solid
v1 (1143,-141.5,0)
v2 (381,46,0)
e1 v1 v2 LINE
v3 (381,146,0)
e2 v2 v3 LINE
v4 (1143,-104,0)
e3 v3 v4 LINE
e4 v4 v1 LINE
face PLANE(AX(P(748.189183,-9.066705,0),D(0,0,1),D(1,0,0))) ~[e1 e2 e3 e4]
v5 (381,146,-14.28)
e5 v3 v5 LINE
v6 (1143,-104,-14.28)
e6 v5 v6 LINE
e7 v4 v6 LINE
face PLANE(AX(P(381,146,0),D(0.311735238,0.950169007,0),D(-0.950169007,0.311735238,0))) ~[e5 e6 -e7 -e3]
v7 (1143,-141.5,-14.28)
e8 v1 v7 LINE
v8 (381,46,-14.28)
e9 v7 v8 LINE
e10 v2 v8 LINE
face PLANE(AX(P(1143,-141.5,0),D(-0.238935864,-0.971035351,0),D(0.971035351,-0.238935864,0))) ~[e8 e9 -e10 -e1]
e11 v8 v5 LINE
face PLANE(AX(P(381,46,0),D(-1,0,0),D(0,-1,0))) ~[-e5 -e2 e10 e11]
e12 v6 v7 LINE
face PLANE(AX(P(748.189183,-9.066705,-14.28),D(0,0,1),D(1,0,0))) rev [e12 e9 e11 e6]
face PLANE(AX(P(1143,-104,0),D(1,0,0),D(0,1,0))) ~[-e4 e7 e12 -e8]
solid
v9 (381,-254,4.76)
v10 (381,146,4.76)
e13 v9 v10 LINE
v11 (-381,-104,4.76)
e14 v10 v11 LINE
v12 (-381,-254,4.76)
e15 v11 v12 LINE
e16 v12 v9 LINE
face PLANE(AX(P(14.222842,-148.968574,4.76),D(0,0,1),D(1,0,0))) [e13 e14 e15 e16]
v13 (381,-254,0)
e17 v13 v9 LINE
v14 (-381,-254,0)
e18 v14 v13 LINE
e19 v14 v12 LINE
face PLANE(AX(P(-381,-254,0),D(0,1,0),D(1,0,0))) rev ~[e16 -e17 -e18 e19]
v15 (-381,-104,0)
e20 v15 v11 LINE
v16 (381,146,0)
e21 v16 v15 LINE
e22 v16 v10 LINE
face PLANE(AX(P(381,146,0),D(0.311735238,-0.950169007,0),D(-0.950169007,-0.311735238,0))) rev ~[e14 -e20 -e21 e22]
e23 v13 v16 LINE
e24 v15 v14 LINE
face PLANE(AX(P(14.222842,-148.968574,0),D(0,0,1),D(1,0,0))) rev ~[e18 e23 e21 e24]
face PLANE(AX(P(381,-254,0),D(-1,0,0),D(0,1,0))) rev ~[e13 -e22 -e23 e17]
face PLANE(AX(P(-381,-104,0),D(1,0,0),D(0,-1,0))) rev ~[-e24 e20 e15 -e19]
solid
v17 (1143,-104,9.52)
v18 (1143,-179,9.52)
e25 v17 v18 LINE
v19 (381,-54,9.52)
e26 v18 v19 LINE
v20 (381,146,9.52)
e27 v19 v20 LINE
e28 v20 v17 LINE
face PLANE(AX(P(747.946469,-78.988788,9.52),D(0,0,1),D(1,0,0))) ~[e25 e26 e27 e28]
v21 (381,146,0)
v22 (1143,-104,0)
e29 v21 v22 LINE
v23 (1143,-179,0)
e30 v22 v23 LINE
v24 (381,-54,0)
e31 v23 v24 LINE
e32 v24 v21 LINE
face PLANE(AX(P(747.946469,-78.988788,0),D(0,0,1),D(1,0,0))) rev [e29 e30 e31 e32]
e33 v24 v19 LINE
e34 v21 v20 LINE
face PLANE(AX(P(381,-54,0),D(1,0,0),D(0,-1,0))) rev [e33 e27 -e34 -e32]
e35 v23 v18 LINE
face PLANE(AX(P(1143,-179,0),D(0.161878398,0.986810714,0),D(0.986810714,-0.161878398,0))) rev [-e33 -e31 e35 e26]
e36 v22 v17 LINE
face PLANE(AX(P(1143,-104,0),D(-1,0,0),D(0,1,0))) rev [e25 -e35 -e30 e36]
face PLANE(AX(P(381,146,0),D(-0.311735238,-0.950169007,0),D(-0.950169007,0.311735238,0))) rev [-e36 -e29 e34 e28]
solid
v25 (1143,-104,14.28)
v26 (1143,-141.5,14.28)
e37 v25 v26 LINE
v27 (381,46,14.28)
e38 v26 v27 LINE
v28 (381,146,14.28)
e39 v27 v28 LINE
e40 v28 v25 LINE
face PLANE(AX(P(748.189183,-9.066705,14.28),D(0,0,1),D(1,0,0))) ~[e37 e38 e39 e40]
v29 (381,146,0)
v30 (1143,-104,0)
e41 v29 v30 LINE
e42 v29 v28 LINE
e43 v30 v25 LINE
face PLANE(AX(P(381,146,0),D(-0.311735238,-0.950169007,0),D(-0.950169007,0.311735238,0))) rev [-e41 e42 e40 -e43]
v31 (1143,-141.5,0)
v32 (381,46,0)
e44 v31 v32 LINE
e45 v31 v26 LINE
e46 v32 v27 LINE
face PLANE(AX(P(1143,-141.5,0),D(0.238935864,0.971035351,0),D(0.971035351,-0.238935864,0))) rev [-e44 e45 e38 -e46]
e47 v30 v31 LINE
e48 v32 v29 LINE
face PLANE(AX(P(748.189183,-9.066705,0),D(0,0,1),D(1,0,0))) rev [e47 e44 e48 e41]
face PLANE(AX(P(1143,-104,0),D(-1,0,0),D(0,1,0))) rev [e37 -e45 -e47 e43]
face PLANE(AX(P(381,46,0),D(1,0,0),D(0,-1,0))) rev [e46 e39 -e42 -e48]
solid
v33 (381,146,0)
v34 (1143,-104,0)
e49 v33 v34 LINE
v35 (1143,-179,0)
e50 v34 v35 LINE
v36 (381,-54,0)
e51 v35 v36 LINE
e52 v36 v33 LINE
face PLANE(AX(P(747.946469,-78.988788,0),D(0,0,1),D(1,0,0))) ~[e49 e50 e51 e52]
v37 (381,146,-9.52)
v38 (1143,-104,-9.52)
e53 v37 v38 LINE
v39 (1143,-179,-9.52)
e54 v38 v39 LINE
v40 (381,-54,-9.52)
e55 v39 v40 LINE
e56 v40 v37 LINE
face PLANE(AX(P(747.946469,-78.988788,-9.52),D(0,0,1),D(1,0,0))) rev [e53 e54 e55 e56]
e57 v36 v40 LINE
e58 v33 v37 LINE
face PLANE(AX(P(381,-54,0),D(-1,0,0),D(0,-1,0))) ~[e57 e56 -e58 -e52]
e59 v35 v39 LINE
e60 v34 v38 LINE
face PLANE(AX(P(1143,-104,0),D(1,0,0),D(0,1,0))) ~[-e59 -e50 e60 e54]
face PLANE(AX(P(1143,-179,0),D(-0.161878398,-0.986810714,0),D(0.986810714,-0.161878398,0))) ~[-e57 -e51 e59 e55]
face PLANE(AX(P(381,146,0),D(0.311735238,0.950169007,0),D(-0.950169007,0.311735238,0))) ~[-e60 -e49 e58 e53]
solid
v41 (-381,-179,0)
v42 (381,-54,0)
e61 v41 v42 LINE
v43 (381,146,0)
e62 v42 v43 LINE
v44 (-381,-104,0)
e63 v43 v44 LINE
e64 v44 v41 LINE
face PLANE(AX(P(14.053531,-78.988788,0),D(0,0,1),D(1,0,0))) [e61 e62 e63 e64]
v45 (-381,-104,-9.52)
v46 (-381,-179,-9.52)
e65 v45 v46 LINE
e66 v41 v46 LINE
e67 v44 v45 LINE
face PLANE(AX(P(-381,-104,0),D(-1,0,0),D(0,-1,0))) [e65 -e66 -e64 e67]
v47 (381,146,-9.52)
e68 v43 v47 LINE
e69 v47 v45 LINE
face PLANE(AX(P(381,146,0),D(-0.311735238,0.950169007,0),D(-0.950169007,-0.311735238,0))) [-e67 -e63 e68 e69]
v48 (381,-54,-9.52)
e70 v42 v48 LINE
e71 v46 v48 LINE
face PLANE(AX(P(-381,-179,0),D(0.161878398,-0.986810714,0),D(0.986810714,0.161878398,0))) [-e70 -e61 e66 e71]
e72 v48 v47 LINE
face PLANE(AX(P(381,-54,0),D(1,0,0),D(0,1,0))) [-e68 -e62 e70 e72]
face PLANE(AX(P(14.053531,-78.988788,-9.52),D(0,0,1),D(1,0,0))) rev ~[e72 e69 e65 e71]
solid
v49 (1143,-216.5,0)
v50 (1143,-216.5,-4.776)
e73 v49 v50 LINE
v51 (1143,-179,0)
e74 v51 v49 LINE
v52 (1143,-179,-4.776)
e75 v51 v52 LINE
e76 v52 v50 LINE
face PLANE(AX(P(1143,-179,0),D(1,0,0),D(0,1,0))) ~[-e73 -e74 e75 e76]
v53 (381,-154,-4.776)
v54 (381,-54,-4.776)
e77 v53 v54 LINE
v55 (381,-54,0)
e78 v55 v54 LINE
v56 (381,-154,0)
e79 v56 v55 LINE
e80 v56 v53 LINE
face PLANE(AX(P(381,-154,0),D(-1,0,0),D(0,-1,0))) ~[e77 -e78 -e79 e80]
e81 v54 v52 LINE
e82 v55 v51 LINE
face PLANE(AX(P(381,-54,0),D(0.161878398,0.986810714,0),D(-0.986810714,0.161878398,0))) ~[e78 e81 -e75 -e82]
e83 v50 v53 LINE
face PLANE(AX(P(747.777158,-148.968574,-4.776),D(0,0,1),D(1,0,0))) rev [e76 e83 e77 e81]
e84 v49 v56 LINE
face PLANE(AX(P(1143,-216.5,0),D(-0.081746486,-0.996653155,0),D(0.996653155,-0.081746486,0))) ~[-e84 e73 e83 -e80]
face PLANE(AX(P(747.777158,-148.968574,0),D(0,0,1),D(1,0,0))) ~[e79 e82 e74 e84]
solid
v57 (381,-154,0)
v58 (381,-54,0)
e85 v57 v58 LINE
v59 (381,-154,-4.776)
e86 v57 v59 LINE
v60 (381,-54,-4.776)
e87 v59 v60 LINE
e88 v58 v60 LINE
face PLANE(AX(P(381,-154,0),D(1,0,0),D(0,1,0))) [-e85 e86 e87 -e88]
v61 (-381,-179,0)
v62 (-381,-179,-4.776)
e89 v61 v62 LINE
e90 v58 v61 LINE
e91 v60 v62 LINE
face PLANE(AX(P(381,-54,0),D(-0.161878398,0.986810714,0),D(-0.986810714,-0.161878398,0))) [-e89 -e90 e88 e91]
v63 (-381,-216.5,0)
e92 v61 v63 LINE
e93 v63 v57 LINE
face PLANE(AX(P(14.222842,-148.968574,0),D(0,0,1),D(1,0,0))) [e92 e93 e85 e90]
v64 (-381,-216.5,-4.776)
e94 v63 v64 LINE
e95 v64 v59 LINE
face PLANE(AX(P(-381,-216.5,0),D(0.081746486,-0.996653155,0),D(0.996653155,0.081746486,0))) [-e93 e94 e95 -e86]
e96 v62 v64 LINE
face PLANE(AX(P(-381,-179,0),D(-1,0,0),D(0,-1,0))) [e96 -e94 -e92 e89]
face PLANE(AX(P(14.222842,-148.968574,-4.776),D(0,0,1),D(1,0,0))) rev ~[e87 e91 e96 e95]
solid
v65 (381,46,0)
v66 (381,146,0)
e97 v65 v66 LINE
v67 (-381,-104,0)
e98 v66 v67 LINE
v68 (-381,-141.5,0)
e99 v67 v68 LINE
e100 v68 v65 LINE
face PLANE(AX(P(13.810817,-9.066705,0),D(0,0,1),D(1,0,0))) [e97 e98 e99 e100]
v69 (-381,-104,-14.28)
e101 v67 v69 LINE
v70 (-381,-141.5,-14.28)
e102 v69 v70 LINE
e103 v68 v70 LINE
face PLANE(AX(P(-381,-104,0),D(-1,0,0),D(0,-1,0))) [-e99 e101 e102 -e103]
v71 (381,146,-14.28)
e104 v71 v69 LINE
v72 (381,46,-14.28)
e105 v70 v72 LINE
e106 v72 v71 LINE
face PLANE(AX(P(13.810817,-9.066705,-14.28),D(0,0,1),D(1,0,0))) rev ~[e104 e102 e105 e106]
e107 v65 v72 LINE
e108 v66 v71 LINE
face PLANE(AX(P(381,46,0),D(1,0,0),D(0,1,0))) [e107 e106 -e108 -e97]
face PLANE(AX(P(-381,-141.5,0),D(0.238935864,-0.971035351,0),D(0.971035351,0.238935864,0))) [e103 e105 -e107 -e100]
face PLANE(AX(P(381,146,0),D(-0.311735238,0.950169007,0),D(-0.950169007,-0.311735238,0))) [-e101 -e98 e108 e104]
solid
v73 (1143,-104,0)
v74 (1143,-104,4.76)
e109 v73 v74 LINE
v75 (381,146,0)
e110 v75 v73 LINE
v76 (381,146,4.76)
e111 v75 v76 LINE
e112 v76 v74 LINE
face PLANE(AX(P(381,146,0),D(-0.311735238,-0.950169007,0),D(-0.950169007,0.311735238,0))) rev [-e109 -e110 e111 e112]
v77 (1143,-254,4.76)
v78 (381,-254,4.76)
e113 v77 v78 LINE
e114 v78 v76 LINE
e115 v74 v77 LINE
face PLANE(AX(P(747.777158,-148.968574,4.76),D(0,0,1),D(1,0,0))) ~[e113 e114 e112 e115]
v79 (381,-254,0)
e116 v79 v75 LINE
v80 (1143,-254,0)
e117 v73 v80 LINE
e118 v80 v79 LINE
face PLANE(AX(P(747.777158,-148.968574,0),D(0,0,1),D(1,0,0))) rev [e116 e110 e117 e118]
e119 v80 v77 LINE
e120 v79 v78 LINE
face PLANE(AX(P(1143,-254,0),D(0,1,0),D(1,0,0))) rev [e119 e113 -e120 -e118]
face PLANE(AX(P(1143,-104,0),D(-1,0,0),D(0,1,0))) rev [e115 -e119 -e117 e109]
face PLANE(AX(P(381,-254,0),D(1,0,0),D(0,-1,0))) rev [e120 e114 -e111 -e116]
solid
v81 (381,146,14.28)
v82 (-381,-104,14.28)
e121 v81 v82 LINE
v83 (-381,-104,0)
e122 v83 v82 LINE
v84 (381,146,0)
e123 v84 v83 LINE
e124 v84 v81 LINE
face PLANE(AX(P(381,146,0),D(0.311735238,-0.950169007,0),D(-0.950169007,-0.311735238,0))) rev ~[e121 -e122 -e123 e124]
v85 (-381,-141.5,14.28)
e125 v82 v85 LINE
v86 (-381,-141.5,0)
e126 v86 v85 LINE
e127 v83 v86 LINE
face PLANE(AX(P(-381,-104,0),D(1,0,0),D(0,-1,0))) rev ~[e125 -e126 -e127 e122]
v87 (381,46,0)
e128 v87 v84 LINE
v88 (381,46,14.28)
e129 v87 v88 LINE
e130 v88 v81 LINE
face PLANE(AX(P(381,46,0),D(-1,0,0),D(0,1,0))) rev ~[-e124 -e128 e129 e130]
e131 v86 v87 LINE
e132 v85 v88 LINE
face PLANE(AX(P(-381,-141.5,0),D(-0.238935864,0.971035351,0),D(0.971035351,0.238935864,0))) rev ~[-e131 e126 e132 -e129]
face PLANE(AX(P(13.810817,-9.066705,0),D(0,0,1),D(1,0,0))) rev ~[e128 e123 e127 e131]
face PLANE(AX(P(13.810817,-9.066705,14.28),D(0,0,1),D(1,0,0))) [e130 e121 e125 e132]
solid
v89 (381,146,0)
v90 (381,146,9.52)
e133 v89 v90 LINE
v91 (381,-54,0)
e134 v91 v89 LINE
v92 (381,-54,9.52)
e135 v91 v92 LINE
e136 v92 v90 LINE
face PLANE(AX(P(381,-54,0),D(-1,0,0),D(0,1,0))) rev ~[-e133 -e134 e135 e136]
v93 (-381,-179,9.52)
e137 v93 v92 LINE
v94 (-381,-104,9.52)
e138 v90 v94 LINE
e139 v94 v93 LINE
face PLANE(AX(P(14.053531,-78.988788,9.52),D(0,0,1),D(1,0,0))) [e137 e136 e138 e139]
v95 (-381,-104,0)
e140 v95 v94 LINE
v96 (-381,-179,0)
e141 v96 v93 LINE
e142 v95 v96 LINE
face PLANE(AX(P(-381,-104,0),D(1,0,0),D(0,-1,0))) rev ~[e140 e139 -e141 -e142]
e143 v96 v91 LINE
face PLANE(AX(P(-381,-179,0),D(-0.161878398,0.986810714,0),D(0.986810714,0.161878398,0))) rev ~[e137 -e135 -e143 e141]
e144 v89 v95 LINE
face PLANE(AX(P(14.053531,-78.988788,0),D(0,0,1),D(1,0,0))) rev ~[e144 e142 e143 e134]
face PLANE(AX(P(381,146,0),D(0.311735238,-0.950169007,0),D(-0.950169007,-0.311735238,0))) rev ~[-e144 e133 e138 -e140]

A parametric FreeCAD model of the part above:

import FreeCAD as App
import Part
import Sketcher
from FreeCAD import Vector

doc = App.newDocument("Part")
params = doc.addObject("Spreadsheet::Sheet", "Params")
for row, (alias, value) in enumerate([
    ("sketch1_width", "762 mm"),
    ("sketch1_height", "150 mm"),
    ("sketch1_height2", "400 mm"),
    ("pad1_length", "4.76 mm"),
    ("sketch2_height", "200 mm"),
    ("sketch2_height2", "75 mm"),
    ("pad2_length", "9.52 mm"),
    ("sketch3_height", "100 mm"),
    ("sketch3_height2", "37.5 mm"),
    ("pad3_length", "14.28 mm"),
    ("sketch4_height", "200 mm"),
    ("sketch4_height2", "75 mm"),
    ("pad4_length", "9.52 mm"),
    ("sketch5_height", "100 mm"),
    ("sketch5_height2", "37.5 mm"),
    ("pad5_length", "14.28 mm"),
    ("sketch6_height", "100 mm"),
    ("sketch6_height2", "37.5 mm"),
    ("pad6_length", "4.776 mm"),
], start=1):
    params.set(f"A{row}", alias)
    params.set(f"B{row}", "=" + value)
    params.setAlias(f"B{row}", alias)

body = doc.addObject("PartDesign::Body", "Body")

sketch1 = doc.addObject("Sketcher::SketchObject", "Sketch")
body.addObject(sketch1)
sketch1.AttachmentSupport = (doc.XY_Plane, [""])
sketch1.MapMode = "FlatFace"
sketch1.addGeometry([
    Part.LineSegment(Vector(381, 146, 0), Vector(-381, -104, 0)),
    Part.LineSegment(Vector(-381, -104, 0), Vector(-381, -254, 0)),
    Part.LineSegment(Vector(-381, -254, 0), Vector(381, -254, 0)),
    Part.LineSegment(Vector(381, -254, 0), Vector(381, 146, 0)),
], False)
sketch1.addConstraint([
    Sketcher.Constraint("Coincident", 0, 2, 1, 1),
    Sketcher.Constraint("Coincident", 1, 2, 2, 1),
    Sketcher.Constraint("Coincident", 2, 2, 3, 1),
    Sketcher.Constraint("Coincident", 3, 2, 0, 1),
    Sketcher.Constraint("Vertical", 1),
    Sketcher.Constraint("Horizontal", 2),
    Sketcher.Constraint("Vertical", 3),
    Sketcher.Constraint("DistanceX", 2, 1, 2, 2, 762.0),
    Sketcher.Constraint("DistanceY", 1, 2, 1, 1, 150.0),
    Sketcher.Constraint("DistanceY", 3, 1, 3, 2, 400.0),
    Sketcher.Constraint("DistanceX", 0, 2, -1, 1, 381.0),
    Sketcher.Constraint("DistanceY", 0, 2, -1, 1, 104.0),
])
sketch1.setExpression("Constraints[7]", "Params.sketch1_width")
sketch1.setExpression("Constraints[8]", "Params.sketch1_height")
sketch1.setExpression("Constraints[9]", "Params.sketch1_height2")
pad1 = doc.addObject("PartDesign::Pad", "Pad")
body.addObject(pad1)
pad1.Profile = sketch1
pad1.setExpression("Length", "Params.pad1_length")
body2 = doc.addObject("PartDesign::Body", "Body001")

sketch2 = doc.addObject("Sketcher::SketchObject", "Sketch001")
body2.addObject(sketch2)
sketch2.AttachmentSupport = (doc.getObject("XY_Plane001"), [""])
sketch2.MapMode = "FlatFace"
sketch2.addGeometry([
    Part.LineSegment(Vector(-381, -179, 0), Vector(381, -54, 0)),
    Part.LineSegment(Vector(381, -54, 0), Vector(381, 146, 0)),
    Part.LineSegment(Vector(381, 146, 0), Vector(-381, -104, 0)),
    Part.LineSegment(Vector(-381, -104, 0), Vector(-381, -179, 0)),
], False)
sketch2.addConstraint([
    Sketcher.Constraint("Coincident", 0, 2, 1, 1),
    Sketcher.Constraint("Coincident", 1, 2, 2, 1),
    Sketcher.Constraint("Coincident", 2, 2, 3, 1),
    Sketcher.Constraint("Coincident", 3, 2, 0, 1),
    Sketcher.Constraint("Vertical", 1),
    Sketcher.Constraint("Vertical", 3),
    Sketcher.Constraint("DistanceY", 1, 1, 1, 2, 200.0),
    Sketcher.Constraint("DistanceY", 3, 2, 3, 1, 75.0),
    Sketcher.Constraint("DistanceX", -1, 1, 0, 2, 381.0),
    Sketcher.Constraint("DistanceY", 0, 2, -1, 1, 54.0),
    Sketcher.Constraint("DistanceX", 2, 2, -1, 1, 381.0),
    Sketcher.Constraint("DistanceY", 2, 2, -1, 1, 104.0),
])
sketch2.setExpression("Constraints[6]", "Params.sketch2_height")
sketch2.setExpression("Constraints[7]", "Params.sketch2_height2")
pad2 = doc.addObject("PartDesign::Pad", "Pad001")
body2.addObject(pad2)
pad2.Profile = sketch2
pad2.setExpression("Length", "Params.pad2_length")
body3 = doc.addObject("PartDesign::Body", "Body002")

sketch3 = doc.addObject("Sketcher::SketchObject", "Sketch002")
body3.addObject(sketch3)
sketch3.AttachmentSupport = (doc.getObject("XY_Plane002"), [""])
sketch3.MapMode = "FlatFace"
sketch3.addGeometry([
    Part.LineSegment(Vector(381, 146, 0), Vector(-381, -104, 0)),
    Part.LineSegment(Vector(-381, -104, 0), Vector(-381, -141.5, 0)),
    Part.LineSegment(Vector(-381, -141.5, 0), Vector(381, 46, 0)),
    Part.LineSegment(Vector(381, 46, 0), Vector(381, 146, 0)),
], False)
sketch3.addConstraint([
    Sketcher.Constraint("Coincident", 0, 2, 1, 1),
    Sketcher.Constraint("Coincident", 1, 2, 2, 1),
    Sketcher.Constraint("Coincident", 2, 2, 3, 1),
    Sketcher.Constraint("Coincident", 3, 2, 0, 1),
    Sketcher.Constraint("Vertical", 1),
    Sketcher.Constraint("Vertical", 3),
    Sketcher.Constraint("DistanceY", 3, 1, 3, 2, 100.0),
    Sketcher.Constraint("DistanceY", 1, 2, 1, 1, 37.5),
    Sketcher.Constraint("DistanceX", 0, 2, -1, 1, 381.0),
    Sketcher.Constraint("DistanceY", 0, 2, -1, 1, 104.0),
    Sketcher.Constraint("DistanceX", -1, 1, 2, 2, 381.0),
    Sketcher.Constraint("DistanceY", -1, 1, 2, 2, 46.0),
])
sketch3.setExpression("Constraints[6]", "Params.sketch3_height")
sketch3.setExpression("Constraints[7]", "Params.sketch3_height2")
pad3 = doc.addObject("PartDesign::Pad", "Pad002")
body3.addObject(pad3)
pad3.Profile = sketch3
pad3.setExpression("Length", "Params.pad3_length")
body4 = doc.addObject("PartDesign::Body", "Body003")

sketch4 = doc.addObject("Sketcher::SketchObject", "Sketch003")
body4.addObject(sketch4)
sketch4.AttachmentSupport = (doc.getObject("XY_Plane003"), [""])
sketch4.MapMode = "FlatFace"
sketch4.addGeometry([
    Part.LineSegment(Vector(-381, -179, 0), Vector(381, -54, 0)),
    Part.LineSegment(Vector(381, -54, 0), Vector(381, 146, 0)),
    Part.LineSegment(Vector(381, 146, 0), Vector(-381, -104, 0)),
    Part.LineSegment(Vector(-381, -104, 0), Vector(-381, -179, 0)),
], False)
sketch4.addConstraint([
    Sketcher.Constraint("Coincident", 0, 2, 1, 1),
    Sketcher.Constraint("Coincident", 1, 2, 2, 1),
    Sketcher.Constraint("Coincident", 2, 2, 3, 1),
    Sketcher.Constraint("Coincident", 3, 2, 0, 1),
    Sketcher.Constraint("Vertical", 1),
    Sketcher.Constraint("Vertical", 3),
    Sketcher.Constraint("DistanceY", 1, 1, 1, 2, 200.0),
    Sketcher.Constraint("DistanceY", 3, 2, 3, 1, 75.0),
    Sketcher.Constraint("DistanceX", -1, 1, 0, 2, 381.0),
    Sketcher.Constraint("DistanceY", 0, 2, -1, 1, 54.0),
    Sketcher.Constraint("DistanceX", 2, 2, -1, 1, 381.0),
    Sketcher.Constraint("DistanceY", 2, 2, -1, 1, 104.0),
])
sketch4.setExpression("Constraints[6]", "Params.sketch4_height")
sketch4.setExpression("Constraints[7]", "Params.sketch4_height2")
pad4 = doc.addObject("PartDesign::Pad", "Pad003")
body4.addObject(pad4)
pad4.Profile = sketch4
pad4.setExpression("Length", "Params.pad4_length")
pad4.Reversed = True
body5 = doc.addObject("PartDesign::Body", "Body004")

sketch5 = doc.addObject("Sketcher::SketchObject", "Sketch004")
body5.addObject(sketch5)
sketch5.AttachmentSupport = (doc.getObject("XY_Plane004"), [""])
sketch5.MapMode = "FlatFace"
sketch5.addGeometry([
    Part.LineSegment(Vector(381, 146, 0), Vector(-381, -104, 0)),
    Part.LineSegment(Vector(-381, -104, 0), Vector(-381, -141.5, 0)),
    Part.LineSegment(Vector(-381, -141.5, 0), Vector(381, 46, 0)),
    Part.LineSegment(Vector(381, 46, 0), Vector(381, 146, 0)),
], False)
sketch5.addConstraint([
    Sketcher.Constraint("Coincident", 0, 2, 1, 1),
    Sketcher.Constraint("Coincident", 1, 2, 2, 1),
    Sketcher.Constraint("Coincident", 2, 2, 3, 1),
    Sketcher.Constraint("Coincident", 3, 2, 0, 1),
    Sketcher.Constraint("Vertical", 1),
    Sketcher.Constraint("Vertical", 3),
    Sketcher.Constraint("DistanceY", 3, 1, 3, 2, 100.0),
    Sketcher.Constraint("DistanceY", 1, 2, 1, 1, 37.5),
    Sketcher.Constraint("DistanceX", 0, 2, -1, 1, 381.0),
    Sketcher.Constraint("DistanceY", 0, 2, -1, 1, 104.0),
    Sketcher.Constraint("DistanceX", -1, 1, 2, 2, 381.0),
    Sketcher.Constraint("DistanceY", -1, 1, 2, 2, 46.0),
])
sketch5.setExpression("Constraints[6]", "Params.sketch5_height")
sketch5.setExpression("Constraints[7]", "Params.sketch5_height2")
pad5 = doc.addObject("PartDesign::Pad", "Pad004")
body5.addObject(pad5)
pad5.Profile = sketch5
pad5.setExpression("Length", "Params.pad5_length")
pad5.Reversed = True
body6 = doc.addObject("PartDesign::Body", "Body005")

sketch6 = doc.addObject("Sketcher::SketchObject", "Sketch005")
body6.addObject(sketch6)
sketch6.AttachmentSupport = (doc.getObject("XY_Plane005"), [""])
sketch6.MapMode = "FlatFace"
sketch6.addGeometry([
    Part.LineSegment(Vector(381, -54, 0), Vector(-381, -179, 0)),
    Part.LineSegment(Vector(-381, -179, 0), Vector(-381, -216.5, 0)),
    Part.LineSegment(Vector(-381, -216.5, 0), Vector(381, -154, 0)),
    Part.LineSegment(Vector(381, -154, 0), Vector(381, -54, 0)),
], False)
sketch6.addConstraint([
    Sketcher.Constraint("Coincident", 0, 2, 1, 1),
    Sketcher.Constraint("Coincident", 1, 2, 2, 1),
    Sketcher.Constraint("Coincident", 2, 2, 3, 1),
    Sketcher.Constraint("Coincident", 3, 2, 0, 1),
    Sketcher.Constraint("Vertical", 1),
    Sketcher.Constraint("Vertical", 3),
    Sketcher.Constraint("DistanceY", 3, 1, 3, 2, 100.0),
    Sketcher.Constraint("DistanceY", 1, 2, 1, 1, 37.5),
    Sketcher.Constraint("DistanceX", 0, 2, -1, 1, 381.0),
    Sketcher.Constraint("DistanceY", 0, 2, -1, 1, 179.0),
    Sketcher.Constraint("DistanceX", -1, 1, 2, 2, 381.0),
    Sketcher.Constraint("DistanceY", 2, 2, -1, 1, 154.0),
])
sketch6.setExpression("Constraints[6]", "Params.sketch6_height")
sketch6.setExpression("Constraints[7]", "Params.sketch6_height2")
pad6 = doc.addObject("PartDesign::Pad", "Pad005")
body6.addObject(pad6)
pad6.Profile = sketch6
pad6.setExpression("Length", "Params.pad6_length")
pad6.Reversed = True
body7 = doc.addObject("PartDesign::Body", "Body006")
doc.recompute()

mirroring = doc.addObject("Part::Mirroring", "Mirroring")
mirroring.Source = body
mirroring.Base = Vector(381, -54, 2.38)
mirroring.Normal = Vector(1, 0, 0)
body7.BaseFeature = mirroring
doc.recompute()
body8 = doc.addObject("PartDesign::Body", "Body007")
doc.recompute()

mirroring2 = doc.addObject("Part::Mirroring", "Mirroring001")
mirroring2.Source = body2
mirroring2.Base = Vector(381, -54, 2.38)
mirroring2.Normal = Vector(1, 0, 0)
body8.BaseFeature = mirroring2
doc.recompute()
body9 = doc.addObject("PartDesign::Body", "Body008")
doc.recompute()

mirroring3 = doc.addObject("Part::Mirroring", "Mirroring002")
mirroring3.Source = body3
mirroring3.Base = Vector(381, -54, 2.38)
mirroring3.Normal = Vector(1, 0, 0)
body9.BaseFeature = mirroring3
doc.recompute()
body10 = doc.addObject("PartDesign::Body", "Body009")
doc.recompute()

mirroring4 = doc.addObject("Part::Mirroring", "Mirroring003")
mirroring4.Source = body4
mirroring4.Base = Vector(381, -54, 2.38)
mirroring4.Normal = Vector(1, 0, 0)
body10.BaseFeature = mirroring4
doc.recompute()
body11 = doc.addObject("PartDesign::Body", "Body010")
doc.recompute()

mirroring5 = doc.addObject("Part::Mirroring", "Mirroring004")
mirroring5.Source = body5
mirroring5.Base = Vector(381, -54, 2.38)
mirroring5.Normal = Vector(1, 0, 0)
body11.BaseFeature = mirroring5
doc.recompute()
body12 = doc.addObject("PartDesign::Body", "Body011")
doc.recompute()

mirroring6 = doc.addObject("Part::Mirroring", "Mirroring005")
mirroring6.Source = body6
mirroring6.Base = Vector(381, -54, 2.38)
mirroring6.Normal = Vector(1, 0, 0)
body12.BaseFeature = mirroring6
doc.recompute()
mirroring.Visibility = False
mirroring2.Visibility = False
mirroring3.Visibility = False
mirroring4.Visibility = False
mirroring5.Visibility = False
mirroring6.Visibility = False

doc.recompute()
